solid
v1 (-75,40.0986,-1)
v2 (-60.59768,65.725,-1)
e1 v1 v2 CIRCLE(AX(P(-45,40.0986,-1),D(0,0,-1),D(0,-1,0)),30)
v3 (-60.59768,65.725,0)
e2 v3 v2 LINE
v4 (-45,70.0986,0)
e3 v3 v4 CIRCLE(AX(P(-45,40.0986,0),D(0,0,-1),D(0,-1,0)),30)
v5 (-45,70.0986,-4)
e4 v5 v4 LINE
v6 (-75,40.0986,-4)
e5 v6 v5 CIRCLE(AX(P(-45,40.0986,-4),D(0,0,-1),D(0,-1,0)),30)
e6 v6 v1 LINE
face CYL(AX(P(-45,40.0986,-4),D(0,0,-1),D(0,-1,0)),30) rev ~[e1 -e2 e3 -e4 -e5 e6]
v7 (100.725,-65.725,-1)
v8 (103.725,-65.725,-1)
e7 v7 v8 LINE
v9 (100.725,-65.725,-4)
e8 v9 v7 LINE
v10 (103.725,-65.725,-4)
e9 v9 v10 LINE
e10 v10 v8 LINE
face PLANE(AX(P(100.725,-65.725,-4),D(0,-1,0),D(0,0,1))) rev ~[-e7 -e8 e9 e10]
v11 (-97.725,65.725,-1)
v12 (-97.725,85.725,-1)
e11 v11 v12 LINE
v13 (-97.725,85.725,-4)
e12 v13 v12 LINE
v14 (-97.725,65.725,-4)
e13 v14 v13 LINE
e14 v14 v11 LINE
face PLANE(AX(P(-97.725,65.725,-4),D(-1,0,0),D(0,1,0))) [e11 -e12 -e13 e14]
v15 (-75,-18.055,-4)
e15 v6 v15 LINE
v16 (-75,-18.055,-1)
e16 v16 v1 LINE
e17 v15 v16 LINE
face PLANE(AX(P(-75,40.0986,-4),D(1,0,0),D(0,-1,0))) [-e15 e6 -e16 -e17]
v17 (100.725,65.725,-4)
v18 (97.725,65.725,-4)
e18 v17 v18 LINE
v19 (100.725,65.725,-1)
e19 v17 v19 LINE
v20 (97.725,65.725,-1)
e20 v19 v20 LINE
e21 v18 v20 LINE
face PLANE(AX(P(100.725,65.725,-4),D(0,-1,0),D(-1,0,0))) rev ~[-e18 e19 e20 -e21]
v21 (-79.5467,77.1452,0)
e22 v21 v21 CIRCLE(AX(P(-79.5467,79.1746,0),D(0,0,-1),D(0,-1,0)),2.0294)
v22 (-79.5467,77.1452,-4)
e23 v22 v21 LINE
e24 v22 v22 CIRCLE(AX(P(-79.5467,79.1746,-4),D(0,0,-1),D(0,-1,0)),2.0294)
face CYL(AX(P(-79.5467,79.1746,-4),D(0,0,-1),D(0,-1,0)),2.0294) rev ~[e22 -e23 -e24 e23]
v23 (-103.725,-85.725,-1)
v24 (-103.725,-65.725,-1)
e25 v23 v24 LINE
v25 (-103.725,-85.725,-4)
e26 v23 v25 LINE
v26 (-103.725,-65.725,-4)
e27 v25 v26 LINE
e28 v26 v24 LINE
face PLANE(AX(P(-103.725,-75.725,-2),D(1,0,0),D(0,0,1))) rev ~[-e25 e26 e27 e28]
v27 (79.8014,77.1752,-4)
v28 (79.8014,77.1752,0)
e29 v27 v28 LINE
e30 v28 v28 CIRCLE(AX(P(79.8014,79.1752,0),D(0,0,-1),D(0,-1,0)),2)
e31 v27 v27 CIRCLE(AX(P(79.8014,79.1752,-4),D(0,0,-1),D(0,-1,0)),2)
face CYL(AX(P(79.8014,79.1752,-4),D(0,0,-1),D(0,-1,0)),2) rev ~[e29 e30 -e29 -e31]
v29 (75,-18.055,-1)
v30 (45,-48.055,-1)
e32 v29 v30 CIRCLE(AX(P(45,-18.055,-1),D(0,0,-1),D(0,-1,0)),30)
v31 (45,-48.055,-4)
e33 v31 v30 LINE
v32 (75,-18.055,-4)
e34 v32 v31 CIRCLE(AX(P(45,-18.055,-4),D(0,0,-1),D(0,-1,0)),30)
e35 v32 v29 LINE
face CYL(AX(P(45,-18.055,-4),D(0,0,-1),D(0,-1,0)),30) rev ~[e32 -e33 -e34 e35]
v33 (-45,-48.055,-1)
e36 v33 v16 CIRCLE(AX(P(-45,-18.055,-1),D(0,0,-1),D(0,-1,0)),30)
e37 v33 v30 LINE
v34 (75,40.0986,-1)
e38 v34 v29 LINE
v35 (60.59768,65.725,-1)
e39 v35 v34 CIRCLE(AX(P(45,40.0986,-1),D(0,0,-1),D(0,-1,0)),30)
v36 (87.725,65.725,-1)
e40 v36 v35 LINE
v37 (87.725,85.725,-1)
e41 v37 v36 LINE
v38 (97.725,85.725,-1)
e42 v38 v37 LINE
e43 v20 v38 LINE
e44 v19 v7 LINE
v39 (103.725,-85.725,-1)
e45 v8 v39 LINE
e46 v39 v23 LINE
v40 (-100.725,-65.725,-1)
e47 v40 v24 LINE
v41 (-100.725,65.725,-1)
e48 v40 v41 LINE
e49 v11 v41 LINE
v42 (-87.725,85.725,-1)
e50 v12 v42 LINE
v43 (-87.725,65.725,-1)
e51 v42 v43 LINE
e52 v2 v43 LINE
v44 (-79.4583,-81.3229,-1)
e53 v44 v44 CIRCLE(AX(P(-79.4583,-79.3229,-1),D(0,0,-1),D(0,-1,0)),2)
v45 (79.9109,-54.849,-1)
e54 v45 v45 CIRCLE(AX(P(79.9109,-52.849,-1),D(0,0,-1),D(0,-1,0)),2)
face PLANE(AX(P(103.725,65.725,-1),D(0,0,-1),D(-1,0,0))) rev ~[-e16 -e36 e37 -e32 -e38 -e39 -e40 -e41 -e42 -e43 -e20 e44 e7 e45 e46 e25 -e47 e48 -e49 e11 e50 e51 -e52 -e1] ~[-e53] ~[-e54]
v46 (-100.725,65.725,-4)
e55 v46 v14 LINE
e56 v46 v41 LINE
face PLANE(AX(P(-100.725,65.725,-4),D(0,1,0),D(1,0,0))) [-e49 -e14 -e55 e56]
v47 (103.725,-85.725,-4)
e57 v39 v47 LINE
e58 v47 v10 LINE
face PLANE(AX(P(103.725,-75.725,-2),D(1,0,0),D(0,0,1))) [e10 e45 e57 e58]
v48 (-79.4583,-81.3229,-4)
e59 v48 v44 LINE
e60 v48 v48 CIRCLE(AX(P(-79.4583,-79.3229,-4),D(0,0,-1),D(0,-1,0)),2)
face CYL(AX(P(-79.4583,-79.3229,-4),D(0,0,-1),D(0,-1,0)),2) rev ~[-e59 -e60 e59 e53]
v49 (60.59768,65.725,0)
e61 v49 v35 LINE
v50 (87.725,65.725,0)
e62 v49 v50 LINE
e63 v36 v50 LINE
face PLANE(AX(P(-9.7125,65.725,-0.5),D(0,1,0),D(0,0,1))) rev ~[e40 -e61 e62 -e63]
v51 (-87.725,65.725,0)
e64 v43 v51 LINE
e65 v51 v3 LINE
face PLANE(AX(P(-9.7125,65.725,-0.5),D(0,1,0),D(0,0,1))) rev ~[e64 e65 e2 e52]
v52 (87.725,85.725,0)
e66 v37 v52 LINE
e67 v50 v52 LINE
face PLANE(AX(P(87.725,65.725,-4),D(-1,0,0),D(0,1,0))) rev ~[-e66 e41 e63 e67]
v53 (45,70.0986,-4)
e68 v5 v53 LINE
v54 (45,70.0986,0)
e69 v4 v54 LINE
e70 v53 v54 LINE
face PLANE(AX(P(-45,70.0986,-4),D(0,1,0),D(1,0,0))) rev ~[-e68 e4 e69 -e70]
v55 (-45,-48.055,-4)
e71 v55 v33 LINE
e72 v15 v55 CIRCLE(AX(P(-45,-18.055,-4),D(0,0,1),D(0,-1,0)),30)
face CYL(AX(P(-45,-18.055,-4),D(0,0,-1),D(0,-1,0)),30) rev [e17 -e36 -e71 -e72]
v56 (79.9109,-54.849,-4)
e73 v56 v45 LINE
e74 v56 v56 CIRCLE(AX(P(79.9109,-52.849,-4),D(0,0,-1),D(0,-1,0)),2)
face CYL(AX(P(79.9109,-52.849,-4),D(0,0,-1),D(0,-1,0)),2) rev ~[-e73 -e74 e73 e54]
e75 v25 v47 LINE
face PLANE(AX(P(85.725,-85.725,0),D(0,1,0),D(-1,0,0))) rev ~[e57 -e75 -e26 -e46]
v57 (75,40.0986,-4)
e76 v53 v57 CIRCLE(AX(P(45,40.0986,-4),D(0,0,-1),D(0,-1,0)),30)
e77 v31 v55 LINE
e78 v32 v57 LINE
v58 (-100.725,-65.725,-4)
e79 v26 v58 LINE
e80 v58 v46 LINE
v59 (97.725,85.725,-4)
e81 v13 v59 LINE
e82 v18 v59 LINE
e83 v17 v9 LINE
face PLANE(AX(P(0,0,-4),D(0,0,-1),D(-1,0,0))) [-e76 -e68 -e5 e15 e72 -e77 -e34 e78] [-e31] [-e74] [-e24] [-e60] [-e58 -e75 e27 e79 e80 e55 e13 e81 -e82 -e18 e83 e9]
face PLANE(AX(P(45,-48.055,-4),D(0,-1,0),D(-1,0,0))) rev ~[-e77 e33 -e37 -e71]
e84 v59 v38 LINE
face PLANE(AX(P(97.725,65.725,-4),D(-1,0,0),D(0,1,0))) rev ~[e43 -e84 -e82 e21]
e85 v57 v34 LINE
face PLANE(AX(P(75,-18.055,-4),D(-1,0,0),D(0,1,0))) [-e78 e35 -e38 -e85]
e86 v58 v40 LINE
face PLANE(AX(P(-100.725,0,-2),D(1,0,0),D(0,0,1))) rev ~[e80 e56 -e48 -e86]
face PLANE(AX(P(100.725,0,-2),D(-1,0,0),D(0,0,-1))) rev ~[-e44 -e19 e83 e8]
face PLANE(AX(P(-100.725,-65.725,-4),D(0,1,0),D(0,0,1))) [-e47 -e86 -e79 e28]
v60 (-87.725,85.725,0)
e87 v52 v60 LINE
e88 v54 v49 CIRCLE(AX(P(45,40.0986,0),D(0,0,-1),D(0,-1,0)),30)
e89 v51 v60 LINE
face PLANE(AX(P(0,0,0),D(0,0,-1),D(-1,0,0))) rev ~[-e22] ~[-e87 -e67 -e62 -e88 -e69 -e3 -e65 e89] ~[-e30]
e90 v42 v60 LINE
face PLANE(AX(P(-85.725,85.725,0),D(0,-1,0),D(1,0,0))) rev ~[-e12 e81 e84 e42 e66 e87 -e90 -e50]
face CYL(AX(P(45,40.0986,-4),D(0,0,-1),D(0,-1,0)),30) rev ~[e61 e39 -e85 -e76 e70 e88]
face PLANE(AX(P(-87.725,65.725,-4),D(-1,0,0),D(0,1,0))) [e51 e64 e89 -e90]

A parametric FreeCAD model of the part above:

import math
import FreeCAD as App
import Part
import Sketcher
from FreeCAD import Vector
Q = App.Units.Quantity


def add_polygon(sketch, points):
    """Adds a closed chain of lines whose ends are joined by coincident constraints."""
    first, n = sketch.GeometryCount, len(points)
    for a, b in zip(points, points[1:] + points[:1]):
        sketch.addGeometry(Part.LineSegment(App.Vector(*a, 0), App.Vector(*b, 0)), False)
    for i in range(n):
        sketch.addConstraint(Sketcher.Constraint("Coincident", first + i, 2, first + (i + 1) % n, 1))

doc = App.newDocument("Part")
body = doc.addObject("PartDesign::Body", "Body")

# Sketch on XY plane
sketch1 = body.newObject("Sketcher::SketchObject", "Sketch")
sketch1.AttachmentSupport = (doc.getObject("XY_Plane"), [""])
sketch1.MapMode = "FlatFace"
add_polygon(sketch1, [(86, 86), (86, -86), (-86, -86), (-86, 86)])  # lines 0-3
sketch1.addConstraint([
    Sketcher.Constraint("Vertical", 0),
    Sketcher.Constraint("Horizontal", 1),
    Sketcher.Constraint("Vertical", 2),
    Sketcher.Constraint("Horizontal", 3),
    Sketcher.Constraint("Symmetric", 0, 2, 2, 2, -1, 1),
    Sketcher.Constraint("Equal", 3, 0),
    Sketcher.Constraint("DistanceX", 1, 2, 1, 1, Q("171.45 mm")),
])
pad1 = body.newObject("PartDesign::Pad", "Pad")
pad1.Profile = sketch1
pad1.Length = 4
pad1.Reversed = True

# Sketch on XY plane
sketch2 = body.newObject("Sketcher::SketchObject", "Sketch001")
sketch2.AttachmentSupport = (doc.getObject("XY_Plane"), [""])
sketch2.MapMode = "FlatFace"
sketch2.AttachmentOffset = App.Placement(Vector(0, 0, -4), App.Rotation())
sketch2.addGeometry([
    Part.ArcOfCircle(Part.Circle(Vector(-45, 40, 0), Vector(0, 0, 1), 30), math.radians(90), math.radians(180)),  # 0
    Part.LineSegment(Vector(-45, 70, 0), Vector(45, 70, 0)),  # 1
    Part.ArcOfCircle(Part.Circle(Vector(45, 40, 0), Vector(0, 0, 1), 30), math.radians(0), math.radians(90)),  # 2
    Part.LineSegment(Vector(75, 40, 0), Vector(75, -18, 0)),  # 3
    Part.ArcOfCircle(Part.Circle(Vector(45, -18, 0), Vector(0, 0, 1), 30), math.radians(-90), math.radians(0)),  # 4
    Part.LineSegment(Vector(45, -48, 0), Vector(-45, -48, 0)),  # 5
    Part.ArcOfCircle(Part.Circle(Vector(-45, -18, 0), Vector(0, 0, 1), 30), math.radians(180), math.radians(270)),  # 6
    Part.LineSegment(Vector(-75, -18, 0), Vector(-75, 40, 0)),  # 7
], False)
sketch2.addConstraint([
    Sketcher.Constraint("Tangent", 0, 1, 1, 1),
    Sketcher.Constraint("Tangent", 1, 2, 2, 2),
    Sketcher.Constraint("Tangent", 2, 1, 3, 1),
    Sketcher.Constraint("Tangent", 3, 2, 4, 2),
    Sketcher.Constraint("Tangent", 4, 1, 5, 1),
    Sketcher.Constraint("Tangent", 5, 2, 6, 2),
    Sketcher.Constraint("Tangent", 6, 1, 7, 1),
    Sketcher.Constraint("Tangent", 7, 2, 0, 2),
    Sketcher.Constraint("Horizontal", 1),
    Sketcher.Constraint("Vertical", 3),
    Sketcher.Constraint("Horizontal", 5),
    Sketcher.Constraint("Vertical", 7),
    Sketcher.Constraint("Equal", 0, 2),
    Sketcher.Constraint("Equal", 2, 4),
    Sketcher.Constraint("Equal", 4, 6),
    Sketcher.Constraint("Radius", 0, Q("30 mm")),
    Sketcher.Constraint("DistanceX", 1, 1, 1, 2, Q("90 mm")),
    Sketcher.Constraint("DistanceX", 0, 3, -1, 1, Q("45 mm")),
    Sketcher.Constraint("DistanceY", -1, 1, 0, 1, Q("70.0986 mm")),
    Sketcher.Constraint("DistanceY", 3, 2, 3, 1, Q("58.1536 mm")),
])
pocket1 = body.newObject("PartDesign::Pocket", "Pocket")
pocket1.Profile = sketch2
pocket1.Length = 18
pocket1.Reversed = True

# Sketch on YZ plane
sketch3 = body.newObject("Sketcher::SketchObject", "Sketch002")
sketch3.AttachmentSupport = (doc.getObject("YZ_Plane"), [""])
sketch3.MapMode = "FlatFace"
sketch3.AttachmentOffset = App.Placement(Vector(0, 0, -85.725), App.Rotation())
add_polygon(sketch3, [(-85.7, 0), (85.7, 0), (85.7, -4), (-85.7, -4)])  # lines 0-3
sketch3.addConstraint([
    Sketcher.Constraint("Horizontal", 0),
    Sketcher.Constraint("Vertical", 1),
    Sketcher.Constraint("Horizontal", 2),
    Sketcher.Constraint("Vertical", 3),
    Sketcher.Constraint("Symmetric", 0, 2, 3, 2, -1, 1),
    Sketcher.Constraint("DistanceY", 1, 2, 1, 1, Q("4 mm")),
    Sketcher.Constraint("DistanceX", 0, 1, 0, 2, Q("171.45 mm")),
])
pad2 = body.newObject("PartDesign::Pad", "Pad001")
pad2.Profile = sketch3
pad2.Length = 15
pad2.Reversed = True

# Sketch on YZ plane
sketch4 = body.newObject("Sketcher::SketchObject", "Sketch003")
sketch4.AttachmentSupport = (doc.getObject("YZ_Plane"), [""])
sketch4.MapMode = "FlatFace"
sketch4.AttachmentOffset = App.Placement(Vector(0, 0, 85.725), App.Rotation())
add_polygon(sketch4, [(-85.7, -4), (85.7, -4), (85.7, 0), (-85.7, 0)])  # lines 0-3
sketch4.addConstraint([
    Sketcher.Constraint("Horizontal", 0),
    Sketcher.Constraint("Vertical", 1),
    Sketcher.Constraint("Horizontal", 2),
    Sketcher.Constraint("Vertical", 3),
    Sketcher.Constraint("Symmetric", 1, 2, 2, 2, -1, 1),
    Sketcher.Constraint("DistanceY", 1, 1, 1, 2, Q("4 mm")),
    Sketcher.Constraint("DistanceX", 0, 1, 0, 2, Q("171.45 mm")),
])
pad3 = body.newObject("PartDesign::Pad", "Pad002")
pad3.Profile = sketch4
pad3.Length = 15

# Sketch on XY plane
sketch5 = body.newObject("Sketcher::SketchObject", "Sketch004")
sketch5.AttachmentSupport = (doc.getObject("XY_Plane"), [""])
sketch5.MapMode = "FlatFace"
sketch5.AttachmentOffset = App.Placement(Vector(0, 0, -4), App.Rotation())
add_polygon(sketch5, [(88, 86), (101, 86), (101, 66), (88, 66)])  # lines 0-3
add_polygon(sketch5, [(-101, 66), (-101, 86), (-88, 86), (-88, 66)])  # lines 4-7
sketch5.addConstraint([
    Sketcher.Constraint("Horizontal", 0),
    Sketcher.Constraint("Vertical", 1),
    Sketcher.Constraint("Horizontal", 2),
    Sketcher.Constraint("Vertical", 3),
    Sketcher.Constraint("Vertical", 4),
    Sketcher.Constraint("Horizontal", 5),
    Sketcher.Constraint("Vertical", 6),
    Sketcher.Constraint("Horizontal", 7),
    Sketcher.Constraint("Symmetric", 0, 2, 4, 2, -2),
    Sketcher.Constraint("Symmetric", 2, 2, 6, 2, -2),
    Sketcher.Constraint("DistanceX", 0, 1, 0, 2, Q("13 mm")),
    Sketcher.Constraint("DistanceY", 1, 2, 1, 1, Q("20 mm")),
    Sketcher.Constraint("DistanceX", 4, 2, 3, 2, Q("188.45 mm")),
    Sketcher.Constraint("DistanceY", -1, 1, 0, 2, Q("85.725 mm")),
])
pocket2 = body.newObject("PartDesign::Pocket", "Pocket001")
pocket2.Profile = sketch5
pocket2.Length = 20
pocket2.Reversed = True

# Sketch on XY plane
sketch6 = body.newObject("Sketcher::SketchObject", "Sketch005")
sketch6.AttachmentSupport = (doc.getObject("XY_Plane"), [""])
sketch6.MapMode = "FlatFace"
sketch6.AttachmentOffset = App.Placement(Vector(0, 0, -4), App.Rotation())
sketch6.addGeometry([
    Part.Circle(Vector(-79.5, -79.3, 0), Vector(0, 0, 1), 2),
    Part.Circle(Vector(79.8, 79.2, 0), Vector(0, 0, 1), 2),
    Part.Circle(Vector(79.9, -52.8, 0), Vector(0, 0, 1), 2),
    Part.Circle(Vector(-79.5, 79.2, 0), Vector(0, 0, 1), 2),
], False)
sketch6.addConstraint([
    Sketcher.Constraint("Equal", 0, 1),
    Sketcher.Constraint("Equal", 1, 2),
    Sketcher.Constraint("Diameter", 0, Q("4 mm")),
    Sketcher.Constraint("Diameter", 3, Q("4.0588 mm")),
    Sketcher.Constraint("DistanceY", 0, 3, -1, 1, Q("79.323 mm")),
    Sketcher.Constraint("DistanceX", -1, 1, 2, 3, Q("79.911 mm")),
    Sketcher.Constraint("DistanceY", 2, 3, -1, 1, Q("52.849 mm")),
    Sketcher.Constraint("DistanceY", 0, 3, 1, 3, Q("158.498 mm")),
    Sketcher.Constraint("DistanceX", 3, 3, 1, 3, Q("159.348 mm")),
    Sketcher.Constraint("DistanceX", 0, 3, -1, 1, Q("79.4583 mm")),
    Sketcher.Constraint("DistanceX", -1, 1, 1, 3, Q("79.8014 mm")),
    Sketcher.Constraint("DistanceY", -1, 1, 3, 3, Q("79.1746 mm")),
])
pocket3 = body.newObject("PartDesign::Pocket", "Pocket002")
pocket3.Profile = sketch6
pocket3.Length = 50
pocket3.Reversed = True

# Sketch on YZ plane
sketch7 = body.newObject("Sketcher::SketchObject", "Sketch006")
sketch7.AttachmentSupport = (doc.getObject("YZ_Plane"), [""])
sketch7.MapMode = "FlatFace"
sketch7.AttachmentOffset = App.Placement(Vector(0, 0, 100.725), App.Rotation())
add_polygon(sketch7, [(-85.7, 0), (-85.7, -4), (-65.7, -4), (-65.7, 0)])  # lines 0-3
sketch7.addConstraint([
    Sketcher.Constraint("Vertical", 0),
    Sketcher.Constraint("Horizontal", 1),
    Sketcher.Constraint("Vertical", 2),
    Sketcher.Constraint("Horizontal", 3),
    Sketcher.Constraint("PointOnObject", 2, 2, -1),
    Sketcher.Constraint("DistanceX", 1, 1, 1, 2, Q("20 mm")),
    Sketcher.Constraint("DistanceY", 0, 2, 0, 1, Q("4 mm")),
    Sketcher.Constraint("DistanceX", 0, 2, -1, 1, Q("85.725 mm")),
])
pad4 = body.newObject("PartDesign::Pad", "Pad003")
pad4.Profile = sketch7
pad4.Length = 6
pad4.Midplane = True

# Sketch on YZ plane
sketch8 = body.newObject("Sketcher::SketchObject", "Sketch007")
sketch8.AttachmentSupport = (doc.getObject("YZ_Plane"), [""])
sketch8.MapMode = "FlatFace"
sketch8.AttachmentOffset = App.Placement(Vector(0, 0, -100.725), App.Rotation())
add_polygon(sketch8, [(-65.7, -4), (-85.7, -4), (-85.7, 0), (-65.7, 0)])  # lines 0-3
sketch8.addConstraint([
    Sketcher.Constraint("Horizontal", 0),
    Sketcher.Constraint("Vertical", 1),
    Sketcher.Constraint("Horizontal", 2),
    Sketcher.Constraint("Vertical", 3),
    Sketcher.Constraint("PointOnObject", 1, 2, -1),
    Sketcher.Constraint("DistanceX", 0, 2, 0, 1, Q("20 mm")),
    Sketcher.Constraint("DistanceY", 1, 1, 1, 2, Q("4 mm")),
    Sketcher.Constraint("DistanceX", 0, 2, -1, 1, Q("85.725 mm")),
])
pad5 = body.newObject("PartDesign::Pad", "Pad004")
pad5.Profile = sketch8
pad5.Length = 6
pad5.Midplane = True

# Sketch on XZ plane
sketch9 = body.newObject("Sketcher::SketchObject", "Sketch008")
sketch9.AttachmentSupport = (doc.getObject("XZ_Plane"), [""])
sketch9.MapMode = "FlatFace"
sketch9.AttachmentOffset = App.Placement(Vector(0, 0, -65.725), App.Rotation())
add_polygon(sketch9, [(-123.2, 0), (103.7, 0), (103.7, -1), (-123.2, -1)])  # lines 0-3
sketch9.addConstraint([
    Sketcher.Constraint("Horizontal", 0),
    Sketcher.Constraint("Vertical", 1),
    Sketcher.Constraint("Horizontal", 2),
    Sketcher.Constraint("Vertical", 3),
    Sketcher.Constraint("PointOnObject", 0, 2, -1),
    Sketcher.Constraint("DistanceY", 1, 2, 1, 1, Q("1 mm")),
    Sketcher.Constraint("DistanceX", 0, 1, 0, 2, Q("226.875 mm")),
    Sketcher.Constraint("DistanceX", 2, 2, -1, 1, Q("123.15 mm")),
])
pocket4 = body.newObject("PartDesign::Pocket", "Pocket003")
pocket4.Profile = sketch9
pocket4.Length = 555
pocket4.Reversed = True

# Sketch on XY plane
sketch10 = body.newObject("Sketcher::SketchObject", "Sketch009")
sketch10.AttachmentSupport = (doc.getObject("XY_Plane"), [""])
sketch10.MapMode = "FlatFace"
sketch10.AttachmentOffset = App.Placement(Vector(0, 0, -4), App.Rotation())
add_polygon(sketch10, [(98, 66), (88, 66), (88, 86), (98, 86)])  # lines 0-3
add_polygon(sketch10, [(-88, 86), (-88, 66), (-98, 66), (-98, 86)])  # lines 4-7
sketch10.addConstraint([
    Sketcher.Constraint("Horizontal", 0),
    Sketcher.Constraint("Vertical", 1),
    Sketcher.Constraint("Horizontal", 2),
    Sketcher.Constraint("Vertical", 3),
    Sketcher.Constraint("Vertical", 4),
    Sketcher.Constraint("Horizontal", 5),
    Sketcher.Constraint("Vertical", 6),
    Sketcher.Constraint("Horizontal", 7),
    Sketcher.Constraint("Symmetric", 0, 2, 4, 2, -2),
    Sketcher.Constraint("Symmetric", 2, 2, 6, 2, -2),
    Sketcher.Constraint("DistanceX", 0, 2, 0, 1, Q("10 mm")),
    Sketcher.Constraint("DistanceY", 1, 1, 1, 2, Q("20 mm")),
    Sketcher.Constraint("DistanceX", 4, 2, 0, 2, Q("175.45 mm")),
    Sketcher.Constraint("DistanceY", -1, 1, 0, 2, Q("65.725 mm")),
])
pad6 = body.newObject("PartDesign::Pad", "Pad005")
pad6.Profile = sketch10
pad6.Length = 3

doc.recompute()
